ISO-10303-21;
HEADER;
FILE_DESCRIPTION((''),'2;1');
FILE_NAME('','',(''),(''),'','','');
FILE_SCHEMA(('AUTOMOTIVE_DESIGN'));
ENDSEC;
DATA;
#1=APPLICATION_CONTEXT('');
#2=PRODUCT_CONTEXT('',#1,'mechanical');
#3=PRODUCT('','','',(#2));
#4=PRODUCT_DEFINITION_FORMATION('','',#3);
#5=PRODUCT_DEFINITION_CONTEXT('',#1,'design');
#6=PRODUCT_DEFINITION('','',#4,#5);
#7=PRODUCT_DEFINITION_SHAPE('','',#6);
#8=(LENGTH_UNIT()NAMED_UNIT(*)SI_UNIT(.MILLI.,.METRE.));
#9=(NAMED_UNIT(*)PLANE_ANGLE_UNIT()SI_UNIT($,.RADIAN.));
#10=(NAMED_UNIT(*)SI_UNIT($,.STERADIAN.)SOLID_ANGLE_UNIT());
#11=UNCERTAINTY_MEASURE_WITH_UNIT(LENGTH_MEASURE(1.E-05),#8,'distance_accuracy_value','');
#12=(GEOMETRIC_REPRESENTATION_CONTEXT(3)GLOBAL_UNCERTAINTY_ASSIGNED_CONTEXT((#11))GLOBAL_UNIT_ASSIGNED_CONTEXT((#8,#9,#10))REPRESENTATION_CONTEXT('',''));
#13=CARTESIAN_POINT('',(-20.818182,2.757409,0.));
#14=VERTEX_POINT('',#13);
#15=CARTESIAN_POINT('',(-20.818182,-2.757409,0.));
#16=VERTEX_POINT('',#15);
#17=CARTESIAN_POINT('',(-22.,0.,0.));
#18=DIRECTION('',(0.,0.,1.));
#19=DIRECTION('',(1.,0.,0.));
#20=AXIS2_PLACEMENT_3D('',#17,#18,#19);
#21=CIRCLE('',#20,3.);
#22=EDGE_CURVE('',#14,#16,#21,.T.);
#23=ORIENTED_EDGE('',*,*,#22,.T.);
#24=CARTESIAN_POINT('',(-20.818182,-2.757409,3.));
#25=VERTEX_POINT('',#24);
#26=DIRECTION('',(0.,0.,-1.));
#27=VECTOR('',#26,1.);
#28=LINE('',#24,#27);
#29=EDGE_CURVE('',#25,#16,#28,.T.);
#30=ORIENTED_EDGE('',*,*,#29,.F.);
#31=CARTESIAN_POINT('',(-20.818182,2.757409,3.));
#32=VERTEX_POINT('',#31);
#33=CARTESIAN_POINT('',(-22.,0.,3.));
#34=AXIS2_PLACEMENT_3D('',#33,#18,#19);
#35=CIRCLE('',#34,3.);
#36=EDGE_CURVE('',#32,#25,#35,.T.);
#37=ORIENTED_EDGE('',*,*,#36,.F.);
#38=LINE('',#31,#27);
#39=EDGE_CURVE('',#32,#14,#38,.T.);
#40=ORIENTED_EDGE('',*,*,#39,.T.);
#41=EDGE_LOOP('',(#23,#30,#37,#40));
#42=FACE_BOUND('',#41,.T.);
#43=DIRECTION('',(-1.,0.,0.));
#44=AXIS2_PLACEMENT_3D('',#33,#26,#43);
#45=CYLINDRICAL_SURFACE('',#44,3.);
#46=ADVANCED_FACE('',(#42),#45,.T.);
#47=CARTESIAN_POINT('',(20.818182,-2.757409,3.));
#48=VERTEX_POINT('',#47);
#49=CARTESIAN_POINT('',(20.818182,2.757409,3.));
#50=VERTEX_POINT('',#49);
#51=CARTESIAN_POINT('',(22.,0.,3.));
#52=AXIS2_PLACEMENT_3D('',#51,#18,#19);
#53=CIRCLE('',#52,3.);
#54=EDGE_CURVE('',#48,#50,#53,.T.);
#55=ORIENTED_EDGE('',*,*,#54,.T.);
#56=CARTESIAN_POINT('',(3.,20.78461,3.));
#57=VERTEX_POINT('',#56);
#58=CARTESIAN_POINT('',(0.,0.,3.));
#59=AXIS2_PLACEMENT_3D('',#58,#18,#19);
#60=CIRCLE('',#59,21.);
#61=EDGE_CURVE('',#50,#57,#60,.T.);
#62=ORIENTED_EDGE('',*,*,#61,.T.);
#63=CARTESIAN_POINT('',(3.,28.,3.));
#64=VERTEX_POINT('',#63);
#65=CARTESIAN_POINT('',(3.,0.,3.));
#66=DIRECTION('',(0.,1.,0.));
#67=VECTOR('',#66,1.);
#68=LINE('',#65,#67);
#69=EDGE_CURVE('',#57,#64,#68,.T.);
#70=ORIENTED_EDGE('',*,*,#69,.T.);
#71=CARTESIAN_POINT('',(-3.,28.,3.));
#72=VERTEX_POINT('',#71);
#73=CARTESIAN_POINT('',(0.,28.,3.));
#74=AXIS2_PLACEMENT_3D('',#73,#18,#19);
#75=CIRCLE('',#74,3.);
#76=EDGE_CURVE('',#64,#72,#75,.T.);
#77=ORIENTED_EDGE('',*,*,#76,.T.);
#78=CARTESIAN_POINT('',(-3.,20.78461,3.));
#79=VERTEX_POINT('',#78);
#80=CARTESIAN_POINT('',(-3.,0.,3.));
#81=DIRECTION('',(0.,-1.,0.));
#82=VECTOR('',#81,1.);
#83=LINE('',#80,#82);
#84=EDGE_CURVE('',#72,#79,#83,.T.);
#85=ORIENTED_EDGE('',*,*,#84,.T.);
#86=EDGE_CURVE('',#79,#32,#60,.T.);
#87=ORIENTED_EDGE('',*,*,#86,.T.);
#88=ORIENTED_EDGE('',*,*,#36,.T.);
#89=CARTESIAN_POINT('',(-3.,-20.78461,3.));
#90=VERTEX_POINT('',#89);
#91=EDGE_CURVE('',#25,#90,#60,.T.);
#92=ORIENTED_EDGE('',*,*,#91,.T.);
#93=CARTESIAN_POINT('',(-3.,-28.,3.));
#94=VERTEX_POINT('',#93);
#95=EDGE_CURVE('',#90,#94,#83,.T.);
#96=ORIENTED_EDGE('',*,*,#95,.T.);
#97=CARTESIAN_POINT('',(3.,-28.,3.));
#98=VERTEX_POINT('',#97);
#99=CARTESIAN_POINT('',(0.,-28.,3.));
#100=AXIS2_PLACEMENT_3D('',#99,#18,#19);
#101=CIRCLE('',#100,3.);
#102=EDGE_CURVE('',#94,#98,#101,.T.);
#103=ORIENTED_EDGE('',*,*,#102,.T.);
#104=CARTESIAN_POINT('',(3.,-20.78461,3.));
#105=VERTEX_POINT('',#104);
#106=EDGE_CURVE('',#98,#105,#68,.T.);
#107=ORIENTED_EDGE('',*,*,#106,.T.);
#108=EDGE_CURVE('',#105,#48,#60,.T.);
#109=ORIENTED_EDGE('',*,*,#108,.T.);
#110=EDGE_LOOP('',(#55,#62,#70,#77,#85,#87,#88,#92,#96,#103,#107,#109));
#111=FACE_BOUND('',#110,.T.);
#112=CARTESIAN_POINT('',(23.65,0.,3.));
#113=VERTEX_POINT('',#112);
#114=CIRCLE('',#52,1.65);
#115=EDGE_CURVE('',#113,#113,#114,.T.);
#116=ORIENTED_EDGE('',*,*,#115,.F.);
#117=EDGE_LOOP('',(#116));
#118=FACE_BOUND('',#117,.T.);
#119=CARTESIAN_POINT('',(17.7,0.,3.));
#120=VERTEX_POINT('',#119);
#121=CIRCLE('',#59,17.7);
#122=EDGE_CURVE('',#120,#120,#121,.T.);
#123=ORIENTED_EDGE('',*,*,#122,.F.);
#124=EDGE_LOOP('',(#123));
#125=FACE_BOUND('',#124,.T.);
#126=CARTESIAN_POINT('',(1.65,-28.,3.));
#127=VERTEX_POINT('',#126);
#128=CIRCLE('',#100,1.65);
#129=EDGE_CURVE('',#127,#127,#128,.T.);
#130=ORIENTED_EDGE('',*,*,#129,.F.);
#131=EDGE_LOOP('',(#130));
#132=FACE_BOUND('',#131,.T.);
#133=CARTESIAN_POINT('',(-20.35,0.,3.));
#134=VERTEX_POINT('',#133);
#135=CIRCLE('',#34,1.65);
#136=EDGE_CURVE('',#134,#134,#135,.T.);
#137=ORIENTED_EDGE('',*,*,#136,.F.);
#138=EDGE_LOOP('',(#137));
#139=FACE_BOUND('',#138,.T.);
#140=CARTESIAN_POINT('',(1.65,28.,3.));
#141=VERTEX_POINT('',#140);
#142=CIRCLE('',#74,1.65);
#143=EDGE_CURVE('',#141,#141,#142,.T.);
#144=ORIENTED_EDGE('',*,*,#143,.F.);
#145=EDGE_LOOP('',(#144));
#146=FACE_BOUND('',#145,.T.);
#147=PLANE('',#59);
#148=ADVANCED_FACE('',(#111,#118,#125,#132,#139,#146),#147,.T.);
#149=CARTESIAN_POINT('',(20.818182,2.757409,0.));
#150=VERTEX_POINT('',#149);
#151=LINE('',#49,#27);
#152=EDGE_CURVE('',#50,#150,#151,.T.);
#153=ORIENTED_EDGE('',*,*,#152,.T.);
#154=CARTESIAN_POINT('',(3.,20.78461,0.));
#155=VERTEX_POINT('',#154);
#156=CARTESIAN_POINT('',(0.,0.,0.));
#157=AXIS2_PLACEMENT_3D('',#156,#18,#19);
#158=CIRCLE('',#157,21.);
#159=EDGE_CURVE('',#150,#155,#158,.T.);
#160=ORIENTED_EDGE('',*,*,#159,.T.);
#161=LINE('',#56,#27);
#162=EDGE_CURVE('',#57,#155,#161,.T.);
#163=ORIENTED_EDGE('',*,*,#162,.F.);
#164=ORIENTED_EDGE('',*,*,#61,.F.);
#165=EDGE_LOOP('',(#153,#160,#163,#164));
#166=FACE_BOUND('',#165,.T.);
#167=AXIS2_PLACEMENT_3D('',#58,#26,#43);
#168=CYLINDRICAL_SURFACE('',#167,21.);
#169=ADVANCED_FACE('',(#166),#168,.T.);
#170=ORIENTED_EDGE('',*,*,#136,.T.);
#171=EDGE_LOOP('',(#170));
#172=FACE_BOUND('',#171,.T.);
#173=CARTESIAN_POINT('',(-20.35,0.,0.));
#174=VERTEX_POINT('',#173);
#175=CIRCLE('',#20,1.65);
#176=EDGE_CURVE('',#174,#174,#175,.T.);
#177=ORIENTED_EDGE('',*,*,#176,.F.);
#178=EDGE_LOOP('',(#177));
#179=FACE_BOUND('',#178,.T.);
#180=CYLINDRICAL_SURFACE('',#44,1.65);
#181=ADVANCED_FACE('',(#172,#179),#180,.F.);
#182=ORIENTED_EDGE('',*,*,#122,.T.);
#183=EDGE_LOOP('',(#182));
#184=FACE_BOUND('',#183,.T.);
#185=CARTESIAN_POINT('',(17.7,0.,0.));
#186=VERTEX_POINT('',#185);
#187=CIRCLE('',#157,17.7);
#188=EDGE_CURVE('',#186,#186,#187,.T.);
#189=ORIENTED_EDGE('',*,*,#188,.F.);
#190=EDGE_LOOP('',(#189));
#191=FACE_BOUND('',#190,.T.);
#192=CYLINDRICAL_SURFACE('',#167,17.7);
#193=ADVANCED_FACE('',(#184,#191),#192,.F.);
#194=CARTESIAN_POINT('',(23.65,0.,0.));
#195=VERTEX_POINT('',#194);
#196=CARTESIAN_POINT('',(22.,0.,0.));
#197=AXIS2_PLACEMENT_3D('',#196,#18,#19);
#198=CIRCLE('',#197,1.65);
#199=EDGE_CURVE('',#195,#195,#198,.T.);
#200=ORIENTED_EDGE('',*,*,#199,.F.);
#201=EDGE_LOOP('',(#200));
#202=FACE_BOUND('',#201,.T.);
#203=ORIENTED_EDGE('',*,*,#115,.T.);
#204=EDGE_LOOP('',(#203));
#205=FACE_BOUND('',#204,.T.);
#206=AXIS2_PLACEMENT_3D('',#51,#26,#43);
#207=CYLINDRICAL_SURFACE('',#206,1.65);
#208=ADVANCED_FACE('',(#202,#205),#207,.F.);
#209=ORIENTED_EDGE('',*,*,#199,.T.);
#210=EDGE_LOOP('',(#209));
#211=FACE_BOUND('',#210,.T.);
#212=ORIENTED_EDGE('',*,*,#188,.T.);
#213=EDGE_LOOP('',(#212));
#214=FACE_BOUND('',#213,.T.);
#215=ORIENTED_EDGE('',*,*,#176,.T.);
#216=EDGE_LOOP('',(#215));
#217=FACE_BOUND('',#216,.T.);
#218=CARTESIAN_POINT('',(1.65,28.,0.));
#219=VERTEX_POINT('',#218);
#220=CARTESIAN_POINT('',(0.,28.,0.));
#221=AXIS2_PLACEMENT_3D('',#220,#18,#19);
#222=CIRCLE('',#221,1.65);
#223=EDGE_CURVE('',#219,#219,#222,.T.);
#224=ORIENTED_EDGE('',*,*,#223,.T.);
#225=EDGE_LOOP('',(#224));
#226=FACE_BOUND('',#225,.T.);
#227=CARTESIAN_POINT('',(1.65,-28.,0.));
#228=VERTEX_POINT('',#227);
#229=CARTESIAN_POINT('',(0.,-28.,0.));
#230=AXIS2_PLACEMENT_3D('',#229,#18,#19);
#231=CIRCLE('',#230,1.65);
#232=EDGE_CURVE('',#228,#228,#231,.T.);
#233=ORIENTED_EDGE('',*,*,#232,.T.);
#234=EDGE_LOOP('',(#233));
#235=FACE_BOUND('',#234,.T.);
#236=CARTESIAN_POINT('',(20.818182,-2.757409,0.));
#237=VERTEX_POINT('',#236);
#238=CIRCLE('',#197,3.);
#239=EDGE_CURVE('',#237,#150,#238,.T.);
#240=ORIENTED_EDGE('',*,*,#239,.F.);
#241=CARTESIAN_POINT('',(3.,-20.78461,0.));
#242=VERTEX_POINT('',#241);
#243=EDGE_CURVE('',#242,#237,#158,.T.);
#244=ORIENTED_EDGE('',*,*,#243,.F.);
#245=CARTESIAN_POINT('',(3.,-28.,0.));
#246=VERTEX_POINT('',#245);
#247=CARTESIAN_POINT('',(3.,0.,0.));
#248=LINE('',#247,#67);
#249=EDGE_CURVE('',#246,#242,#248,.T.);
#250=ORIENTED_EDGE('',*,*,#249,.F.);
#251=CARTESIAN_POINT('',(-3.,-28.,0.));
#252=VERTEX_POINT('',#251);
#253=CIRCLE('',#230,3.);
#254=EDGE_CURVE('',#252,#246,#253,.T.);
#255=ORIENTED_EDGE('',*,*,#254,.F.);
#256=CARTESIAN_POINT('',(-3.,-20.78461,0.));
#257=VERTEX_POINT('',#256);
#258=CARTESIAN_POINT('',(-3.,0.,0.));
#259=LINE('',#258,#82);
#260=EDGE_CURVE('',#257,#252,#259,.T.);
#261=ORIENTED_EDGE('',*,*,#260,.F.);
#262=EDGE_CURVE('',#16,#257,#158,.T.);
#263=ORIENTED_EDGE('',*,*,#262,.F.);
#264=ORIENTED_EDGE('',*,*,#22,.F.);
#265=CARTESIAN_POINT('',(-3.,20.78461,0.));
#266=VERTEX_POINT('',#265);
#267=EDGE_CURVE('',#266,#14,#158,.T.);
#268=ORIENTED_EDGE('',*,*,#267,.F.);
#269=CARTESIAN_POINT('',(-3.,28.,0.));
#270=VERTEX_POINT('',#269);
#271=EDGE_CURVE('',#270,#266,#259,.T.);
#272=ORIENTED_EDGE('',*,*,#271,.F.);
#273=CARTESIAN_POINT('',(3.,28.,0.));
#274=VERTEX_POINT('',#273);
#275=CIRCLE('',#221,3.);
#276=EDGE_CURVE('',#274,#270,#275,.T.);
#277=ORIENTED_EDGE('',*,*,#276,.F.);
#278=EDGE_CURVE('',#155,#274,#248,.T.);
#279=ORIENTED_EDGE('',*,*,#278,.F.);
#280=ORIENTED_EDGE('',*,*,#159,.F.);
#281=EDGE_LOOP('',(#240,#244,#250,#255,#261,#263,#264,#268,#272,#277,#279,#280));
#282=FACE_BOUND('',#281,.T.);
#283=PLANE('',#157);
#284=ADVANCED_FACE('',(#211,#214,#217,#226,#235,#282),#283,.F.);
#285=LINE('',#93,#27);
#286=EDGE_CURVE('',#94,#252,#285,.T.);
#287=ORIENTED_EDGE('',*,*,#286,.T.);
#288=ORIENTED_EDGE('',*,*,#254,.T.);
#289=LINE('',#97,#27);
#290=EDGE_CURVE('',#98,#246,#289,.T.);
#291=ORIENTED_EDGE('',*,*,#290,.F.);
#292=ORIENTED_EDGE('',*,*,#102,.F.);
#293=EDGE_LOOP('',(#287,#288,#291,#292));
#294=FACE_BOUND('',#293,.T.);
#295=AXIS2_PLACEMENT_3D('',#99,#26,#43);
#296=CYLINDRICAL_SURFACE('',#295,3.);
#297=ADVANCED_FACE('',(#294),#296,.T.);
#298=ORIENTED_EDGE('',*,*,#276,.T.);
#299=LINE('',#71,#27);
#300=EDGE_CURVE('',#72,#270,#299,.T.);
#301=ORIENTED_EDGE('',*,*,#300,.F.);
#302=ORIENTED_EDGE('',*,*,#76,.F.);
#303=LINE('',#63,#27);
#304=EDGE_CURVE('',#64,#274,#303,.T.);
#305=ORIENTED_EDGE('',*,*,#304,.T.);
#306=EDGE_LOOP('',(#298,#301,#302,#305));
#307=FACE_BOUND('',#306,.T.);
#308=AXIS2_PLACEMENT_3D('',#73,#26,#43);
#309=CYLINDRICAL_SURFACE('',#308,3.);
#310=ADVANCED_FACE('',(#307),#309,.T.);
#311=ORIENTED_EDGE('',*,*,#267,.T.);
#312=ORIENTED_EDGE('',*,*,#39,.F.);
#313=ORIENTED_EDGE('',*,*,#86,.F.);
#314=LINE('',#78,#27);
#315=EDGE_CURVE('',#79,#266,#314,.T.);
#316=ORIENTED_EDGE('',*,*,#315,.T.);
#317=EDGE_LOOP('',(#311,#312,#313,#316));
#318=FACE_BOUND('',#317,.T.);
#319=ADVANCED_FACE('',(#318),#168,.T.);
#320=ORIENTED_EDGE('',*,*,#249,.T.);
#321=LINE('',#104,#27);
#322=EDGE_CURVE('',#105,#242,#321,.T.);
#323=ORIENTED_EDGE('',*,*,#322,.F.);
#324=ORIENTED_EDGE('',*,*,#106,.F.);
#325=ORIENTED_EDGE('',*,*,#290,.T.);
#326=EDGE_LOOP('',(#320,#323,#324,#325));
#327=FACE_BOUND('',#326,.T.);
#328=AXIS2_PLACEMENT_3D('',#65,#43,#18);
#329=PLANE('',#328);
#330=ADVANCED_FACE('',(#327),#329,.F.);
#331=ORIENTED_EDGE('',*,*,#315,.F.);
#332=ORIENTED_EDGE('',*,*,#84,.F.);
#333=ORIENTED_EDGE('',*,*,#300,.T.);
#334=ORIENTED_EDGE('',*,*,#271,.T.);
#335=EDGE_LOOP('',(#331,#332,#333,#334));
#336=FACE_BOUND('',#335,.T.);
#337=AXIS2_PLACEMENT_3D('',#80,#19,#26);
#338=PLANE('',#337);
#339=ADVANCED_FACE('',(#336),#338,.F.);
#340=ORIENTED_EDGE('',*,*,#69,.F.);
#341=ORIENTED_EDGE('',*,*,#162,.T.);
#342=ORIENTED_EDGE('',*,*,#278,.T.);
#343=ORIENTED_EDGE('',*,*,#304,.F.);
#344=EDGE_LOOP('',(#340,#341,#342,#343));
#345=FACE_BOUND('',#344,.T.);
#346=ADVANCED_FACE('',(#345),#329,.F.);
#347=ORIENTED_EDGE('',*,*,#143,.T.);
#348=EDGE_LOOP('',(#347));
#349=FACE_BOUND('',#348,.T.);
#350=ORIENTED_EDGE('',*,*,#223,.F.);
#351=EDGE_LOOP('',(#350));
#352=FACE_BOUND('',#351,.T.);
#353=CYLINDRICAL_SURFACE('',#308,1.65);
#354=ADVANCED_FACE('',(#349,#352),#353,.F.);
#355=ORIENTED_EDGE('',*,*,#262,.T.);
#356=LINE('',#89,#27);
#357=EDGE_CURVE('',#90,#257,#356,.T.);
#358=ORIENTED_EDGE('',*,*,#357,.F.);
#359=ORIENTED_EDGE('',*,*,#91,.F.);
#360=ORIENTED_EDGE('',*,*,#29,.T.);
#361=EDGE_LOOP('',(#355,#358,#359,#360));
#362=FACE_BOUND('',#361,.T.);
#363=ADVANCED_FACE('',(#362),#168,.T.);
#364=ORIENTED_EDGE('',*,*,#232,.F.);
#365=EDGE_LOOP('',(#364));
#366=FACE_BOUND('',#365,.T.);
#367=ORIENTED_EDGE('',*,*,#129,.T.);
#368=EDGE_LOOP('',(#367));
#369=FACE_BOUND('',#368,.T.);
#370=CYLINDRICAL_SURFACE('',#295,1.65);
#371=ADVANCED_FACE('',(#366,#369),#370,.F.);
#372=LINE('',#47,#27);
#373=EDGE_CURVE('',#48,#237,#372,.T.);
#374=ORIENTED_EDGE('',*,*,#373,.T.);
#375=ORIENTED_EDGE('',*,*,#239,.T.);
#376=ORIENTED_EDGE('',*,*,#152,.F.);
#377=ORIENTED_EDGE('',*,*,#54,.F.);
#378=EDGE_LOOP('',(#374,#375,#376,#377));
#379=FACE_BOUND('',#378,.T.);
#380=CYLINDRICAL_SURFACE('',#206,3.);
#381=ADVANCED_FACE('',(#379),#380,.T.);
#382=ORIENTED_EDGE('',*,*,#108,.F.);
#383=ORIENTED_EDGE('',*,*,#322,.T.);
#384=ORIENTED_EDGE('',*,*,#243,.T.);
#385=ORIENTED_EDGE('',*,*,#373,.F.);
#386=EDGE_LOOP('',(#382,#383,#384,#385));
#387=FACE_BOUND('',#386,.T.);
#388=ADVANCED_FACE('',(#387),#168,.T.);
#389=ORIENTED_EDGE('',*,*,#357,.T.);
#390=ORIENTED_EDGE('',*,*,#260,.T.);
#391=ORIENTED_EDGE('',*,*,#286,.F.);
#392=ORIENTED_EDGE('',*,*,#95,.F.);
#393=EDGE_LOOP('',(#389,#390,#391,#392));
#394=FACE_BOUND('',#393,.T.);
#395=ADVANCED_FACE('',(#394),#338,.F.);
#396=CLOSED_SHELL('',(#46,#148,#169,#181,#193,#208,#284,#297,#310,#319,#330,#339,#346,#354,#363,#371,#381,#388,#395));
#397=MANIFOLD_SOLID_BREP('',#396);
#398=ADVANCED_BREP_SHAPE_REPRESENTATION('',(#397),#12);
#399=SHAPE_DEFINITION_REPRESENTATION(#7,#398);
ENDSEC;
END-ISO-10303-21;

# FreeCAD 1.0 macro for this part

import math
import FreeCAD as App
import Part
import Sketcher

V = App.Vector
Q = App.Units.Quantity

doc = App.newDocument("Part")
body = doc.addObject("PartDesign::Body", "Body")

# Sketch on XY plane
sketch1 = body.newObject("Sketcher::SketchObject", "Sketch")
sketch1.AttachmentSupport = (doc.getObject("XY_Plane"), [""])
sketch1.MapMode = "FlatFace"
sketch1.addGeometry(Part.ArcOfCircle(Part.Circle(V(0, 28, 0), V(0, 0, 1), 3), math.radians(0), math.radians(180)), False)
sketch1.addGeometry(Part.LineSegment(V(-3, 28, 0), V(-3, 20.8, 0)), False)
sketch1.addGeometry(Part.ArcOfCircle(Part.Circle(V(0, 0, 0), V(0, 0, 1), 21), math.radians(98), math.radians(172)), False)
sketch1.addGeometry(Part.ArcOfCircle(Part.Circle(V(-22, 0, 0), V(0, 0, 1), 3), math.radians(67), math.radians(293)), False)
sketch1.addGeometry(Part.ArcOfCircle(Part.Circle(V(0, 0, 0), V(0, 0, 1), 21), math.radians(-172), math.radians(-98)), False)
sketch1.addGeometry(Part.LineSegment(V(-3, -20.8, 0), V(-3, -28, 0)), False)
sketch1.addGeometry(Part.ArcOfCircle(Part.Circle(V(0, -28, 0), V(0, 0, 1), 3), math.radians(180), math.radians(360)), False)
sketch1.addGeometry(Part.LineSegment(V(3, -28, 0), V(3, -20.8, 0)), False)
sketch1.addGeometry(Part.ArcOfCircle(Part.Circle(V(0, 0, 0), V(0, 0, 1), 21), math.radians(-82), math.radians(-8)), False)
sketch1.addGeometry(Part.ArcOfCircle(Part.Circle(V(22, 0, 0), V(0, 0, 1), 3), math.radians(-113), math.radians(113)), False)
sketch1.addGeometry(Part.ArcOfCircle(Part.Circle(V(0, 0, 0), V(0, 0, 1), 21), math.radians(8), math.radians(82)), False)
sketch1.addGeometry(Part.LineSegment(V(3, 20.8, 0), V(3, 28, 0)), False)
sketch1.addGeometry(Part.Circle(V(0, -28, 0), V(0, 0, 1), 1.6), False)
sketch1.addGeometry(Part.Circle(V(-22, 0, 0), V(0, 0, 1), 1.6), False)
sketch1.addGeometry(Part.Circle(V(0, 0, 0), V(0, 0, 1), 17.7), False)
sketch1.addGeometry(Part.Circle(V(22, 0, 0), V(0, 0, 1), 1.6), False)
sketch1.addGeometry(Part.Circle(V(0, 28, 0), V(0, 0, 1), 1.6), False)
sketch1.addConstraint(Sketcher.Constraint("Tangent", 0, 2, 1, 1))
sketch1.addConstraint(Sketcher.Constraint("Coincident", 1, 2, 2, 1))
sketch1.addConstraint(Sketcher.Constraint("Coincident", 2, 2, 3, 1))
sketch1.addConstraint(Sketcher.Constraint("Coincident", 3, 2, 4, 1))
sketch1.addConstraint(Sketcher.Constraint("Coincident", 4, 2, 5, 1))
sketch1.addConstraint(Sketcher.Constraint("Tangent", 5, 2, 6, 1))
sketch1.addConstraint(Sketcher.Constraint("Tangent", 6, 2, 7, 1))
sketch1.addConstraint(Sketcher.Constraint("Coincident", 7, 2, 8, 1))
sketch1.addConstraint(Sketcher.Constraint("Coincident", 8, 2, 9, 1))
sketch1.addConstraint(Sketcher.Constraint("Coincident", 9, 2, 10, 1))
sketch1.addConstraint(Sketcher.Constraint("Coincident", 10, 2, 11, 1))
sketch1.addConstraint(Sketcher.Constraint("Tangent", 11, 2, 0, 1))
sketch1.addConstraint(Sketcher.Constraint("Vertical", 1))
sketch1.addConstraint(Sketcher.Constraint("Vertical", 5))
sketch1.addConstraint(Sketcher.Constraint("Vertical", 7))
sketch1.addConstraint(Sketcher.Constraint("Vertical", 11))
sketch1.addConstraint(Sketcher.Constraint("Coincident", 2, 3, -1, 1))
sketch1.addConstraint(Sketcher.Constraint("Coincident", 4, 3, -1, 1))
sketch1.addConstraint(Sketcher.Constraint("Coincident", 8, 3, -1, 1))
sketch1.addConstraint(Sketcher.Constraint("Coincident", 10, 3, -1, 1))
sketch1.addConstraint(Sketcher.Constraint("Coincident", 14, 3, -1, 1))
sketch1.addConstraint(Sketcher.Constraint("Coincident", 12, 3, 6, 3))
sketch1.addConstraint(Sketcher.Constraint("Coincident", 13, 3, 3, 3))
sketch1.addConstraint(Sketcher.Constraint("Coincident", 15, 3, 9, 3))
sketch1.addConstraint(Sketcher.Constraint("Coincident", 16, 3, 0, 3))
sketch1.addConstraint(Sketcher.Constraint("Equal", 0, 3))
sketch1.addConstraint(Sketcher.Constraint("Equal", 2, 4))
sketch1.addConstraint(Sketcher.Constraint("Equal", 3, 6))
sketch1.addConstraint(Sketcher.Constraint("Equal", 4, 8))
sketch1.addConstraint(Sketcher.Constraint("Equal", 6, 9))
sketch1.addConstraint(Sketcher.Constraint("Equal", 8, 10))
sketch1.addConstraint(Sketcher.Constraint("Equal", 12, 13))
sketch1.addConstraint(Sketcher.Constraint("Equal", 13, 15))
sketch1.addConstraint(Sketcher.Constraint("Equal", 15, 16))
sketch1.addConstraint(Sketcher.Constraint("Symmetric", 0, 3, 6, 3, -1, 1))
sketch1.addConstraint(Sketcher.Constraint("Symmetric", 3, 3, 9, 3, -1, 1))
sketch1.addConstraint(Sketcher.Constraint("PointOnObject", 0, 3, -2))
sketch1.addConstraint(Sketcher.Constraint("PointOnObject", 3, 3, -1))
sketch1.addConstraint(Sketcher.Constraint("Radius", 0, Q("3 mm")))
sketch1.addConstraint(Sketcher.Constraint("Radius", 2, Q("21 mm")))
sketch1.addConstraint(Sketcher.Constraint("Diameter", 12, Q("3.3 mm")))
sketch1.addConstraint(Sketcher.Constraint("Diameter", 14, Q("35.4 mm")))
sketch1.addConstraint(Sketcher.Constraint("DistanceY", -1, 1, 0, 3, Q("28 mm")))
sketch1.addConstraint(Sketcher.Constraint("DistanceX", 3, 3, -1, 1, Q("22 mm")))
pad1 = body.newObject("PartDesign::Pad", "Pad")
pad1.Profile = sketch1
pad1.Length = 3

doc.recompute()
